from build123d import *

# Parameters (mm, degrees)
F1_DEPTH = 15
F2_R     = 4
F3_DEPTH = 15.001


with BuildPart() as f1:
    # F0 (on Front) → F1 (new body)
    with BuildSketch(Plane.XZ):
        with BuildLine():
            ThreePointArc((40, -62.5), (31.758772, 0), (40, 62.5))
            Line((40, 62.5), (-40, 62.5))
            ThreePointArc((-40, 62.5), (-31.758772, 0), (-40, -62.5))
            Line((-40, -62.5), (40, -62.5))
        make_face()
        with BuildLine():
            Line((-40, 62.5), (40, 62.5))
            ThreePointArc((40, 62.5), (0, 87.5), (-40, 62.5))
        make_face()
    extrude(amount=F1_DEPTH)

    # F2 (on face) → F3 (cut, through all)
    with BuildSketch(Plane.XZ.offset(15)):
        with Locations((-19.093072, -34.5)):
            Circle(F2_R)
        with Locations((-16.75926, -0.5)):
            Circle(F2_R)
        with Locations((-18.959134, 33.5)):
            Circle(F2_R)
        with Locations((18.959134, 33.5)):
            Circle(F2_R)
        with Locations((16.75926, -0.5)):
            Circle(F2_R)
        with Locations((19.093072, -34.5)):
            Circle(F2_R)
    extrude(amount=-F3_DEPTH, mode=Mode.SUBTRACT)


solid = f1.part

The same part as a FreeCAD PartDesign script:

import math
import FreeCAD as App
import Part
import Sketcher
from FreeCAD import Vector

doc = App.newDocument("Part")
body = doc.addObject("PartDesign::Body", "Body")

# Sketch on XZ plane
sketch1 = body.newObject("Sketcher::SketchObject", "Sketch")
sketch1.AttachmentSupport = (doc.getObject("XZ_Plane"), [""])
sketch1.MapMode = "FlatFace"
sketch1.addGeometry(Part.ArcOfCircle(Part.Circle(Vector(272.8738, 0, 0), Vector(0, 0, 1), 241.115028), math.radians(164.976667), math.radians(195.023333)), False)
sketch1.addGeometry(Part.ArcOfCircle(Part.Circle(Vector(0, 43, 0), Vector(0, 0, 1), 44.5), math.radians(25.989234), math.radians(154.010766)), False)
sketch1.addGeometry(Part.ArcOfCircle(Part.Circle(Vector(-272.8738, 0, 0), Vector(0, 0, 1), 241.115028), math.radians(-15.023333), math.radians(15.023333)), False)
sketch1.addGeometry(Part.LineSegment(Vector(-40, -62.5, 0), Vector(40, -62.5, 0)), False)
sketch1.addConstraint(Sketcher.Constraint("Coincident", 0, 1, 1, 1))
sketch1.addConstraint(Sketcher.Constraint("Coincident", 1, 2, 2, 2))
sketch1.addConstraint(Sketcher.Constraint("Coincident", 2, 1, 3, 1))
sketch1.addConstraint(Sketcher.Constraint("Coincident", 3, 2, 0, 2))
sketch1.addConstraint(Sketcher.Constraint("Horizontal", 3))
sketch1.addConstraint(Sketcher.Constraint("Equal", 0, 2))
sketch1.addConstraint(Sketcher.Constraint("Symmetric", 0, 3, 2, 3, -1, 1))
sketch1.addConstraint(Sketcher.Constraint("Symmetric", 0, 1, 1, 2, -2))
sketch1.addConstraint(Sketcher.Constraint("Vertical", 1, 2, 2, 1))
sketch1.addConstraint(Sketcher.Constraint("Radius", 1, 44.5))
sketch1.addConstraint(Sketcher.Constraint("DistanceX", 3, 1, 3, 2, 80.0))
sketch1.addConstraint(Sketcher.Constraint("DistanceY", -1, 1, 1, 3, 43.0))
sketch1.addConstraint(Sketcher.Constraint("Radius", 0, 241.115028))
pad1 = body.newObject("PartDesign::Pad", "Pad")
pad1.Profile = sketch1
pad1.Length = 15

# Sketch on XZ plane
sketch2 = body.newObject("Sketcher::SketchObject", "Sketch001")
sketch2.AttachmentSupport = (doc.getObject("XZ_Plane"), [""])
sketch2.MapMode = "FlatFace"
sketch2.AttachmentOffset = App.Placement(Vector(0, 0, 15), App.Rotation())
sketch2.addGeometry(Part.Circle(Vector(-19.093072, -34.5, 0), Vector(0, 0, 1), 4), False)
sketch2.addGeometry(Part.Circle(Vector(-16.75926, -0.5, 0), Vector(0, 0, 1), 4), False)
sketch2.addGeometry(Part.Circle(Vector(-18.959134, 33.5, 0), Vector(0, 0, 1), 4), False)
sketch2.addGeometry(Part.Circle(Vector(18.959134, 33.5, 0), Vector(0, 0, 1), 4), False)
sketch2.addGeometry(Part.Circle(Vector(16.75926, -0.5, 0), Vector(0, 0, 1), 4), False)
sketch2.addGeometry(Part.Circle(Vector(19.093072, -34.5, 0), Vector(0, 0, 1), 4), False)
sketch2.addConstraint(Sketcher.Constraint("Equal", 0, 1))
sketch2.addConstraint(Sketcher.Constraint("Equal", 1, 2))
sketch2.addConstraint(Sketcher.Constraint("Equal", 2, 3))
sketch2.addConstraint(Sketcher.Constraint("Equal", 3, 4))
sketch2.addConstraint(Sketcher.Constraint("Equal", 4, 5))
sketch2.addConstraint(Sketcher.Constraint("Symmetric", 2, 3, 3, 3, -2))
sketch2.addConstraint(Sketcher.Constraint("Symmetric", 1, 3, 4, 3, -2))
sketch2.addConstraint(Sketcher.Constraint("Symmetric", 0, 3, 5, 3, -2))
sketch2.addConstraint(Sketcher.Constraint("Diameter", 0, 8.0))
sketch2.addConstraint(Sketcher.Constraint("DistanceY", 0, 3, 1, 3, 34.0))
sketch2.addConstraint(Sketcher.Constraint("DistanceY", 1, 3, 2, 3, 34.0))
sketch2.addConstraint(Sketcher.Constraint("DistanceY", 0, 3, -1, 1, 34.5))
sketch2.addConstraint(Sketcher.Constraint("DistanceX", 0, 3, -1, 1, 19.093072))
sketch2.addConstraint(Sketcher.Constraint("DistanceX", 1, 3, -1, 1, 16.75926))
sketch2.addConstraint(Sketcher.Constraint("DistanceX", 0, 3, 2, 3, 0.133938))
pocket1 = body.newObject("PartDesign::Pocket", "Pocket")
pocket1.Profile = sketch2
pocket1.Type = "ThroughAll"

doc.recompute()
